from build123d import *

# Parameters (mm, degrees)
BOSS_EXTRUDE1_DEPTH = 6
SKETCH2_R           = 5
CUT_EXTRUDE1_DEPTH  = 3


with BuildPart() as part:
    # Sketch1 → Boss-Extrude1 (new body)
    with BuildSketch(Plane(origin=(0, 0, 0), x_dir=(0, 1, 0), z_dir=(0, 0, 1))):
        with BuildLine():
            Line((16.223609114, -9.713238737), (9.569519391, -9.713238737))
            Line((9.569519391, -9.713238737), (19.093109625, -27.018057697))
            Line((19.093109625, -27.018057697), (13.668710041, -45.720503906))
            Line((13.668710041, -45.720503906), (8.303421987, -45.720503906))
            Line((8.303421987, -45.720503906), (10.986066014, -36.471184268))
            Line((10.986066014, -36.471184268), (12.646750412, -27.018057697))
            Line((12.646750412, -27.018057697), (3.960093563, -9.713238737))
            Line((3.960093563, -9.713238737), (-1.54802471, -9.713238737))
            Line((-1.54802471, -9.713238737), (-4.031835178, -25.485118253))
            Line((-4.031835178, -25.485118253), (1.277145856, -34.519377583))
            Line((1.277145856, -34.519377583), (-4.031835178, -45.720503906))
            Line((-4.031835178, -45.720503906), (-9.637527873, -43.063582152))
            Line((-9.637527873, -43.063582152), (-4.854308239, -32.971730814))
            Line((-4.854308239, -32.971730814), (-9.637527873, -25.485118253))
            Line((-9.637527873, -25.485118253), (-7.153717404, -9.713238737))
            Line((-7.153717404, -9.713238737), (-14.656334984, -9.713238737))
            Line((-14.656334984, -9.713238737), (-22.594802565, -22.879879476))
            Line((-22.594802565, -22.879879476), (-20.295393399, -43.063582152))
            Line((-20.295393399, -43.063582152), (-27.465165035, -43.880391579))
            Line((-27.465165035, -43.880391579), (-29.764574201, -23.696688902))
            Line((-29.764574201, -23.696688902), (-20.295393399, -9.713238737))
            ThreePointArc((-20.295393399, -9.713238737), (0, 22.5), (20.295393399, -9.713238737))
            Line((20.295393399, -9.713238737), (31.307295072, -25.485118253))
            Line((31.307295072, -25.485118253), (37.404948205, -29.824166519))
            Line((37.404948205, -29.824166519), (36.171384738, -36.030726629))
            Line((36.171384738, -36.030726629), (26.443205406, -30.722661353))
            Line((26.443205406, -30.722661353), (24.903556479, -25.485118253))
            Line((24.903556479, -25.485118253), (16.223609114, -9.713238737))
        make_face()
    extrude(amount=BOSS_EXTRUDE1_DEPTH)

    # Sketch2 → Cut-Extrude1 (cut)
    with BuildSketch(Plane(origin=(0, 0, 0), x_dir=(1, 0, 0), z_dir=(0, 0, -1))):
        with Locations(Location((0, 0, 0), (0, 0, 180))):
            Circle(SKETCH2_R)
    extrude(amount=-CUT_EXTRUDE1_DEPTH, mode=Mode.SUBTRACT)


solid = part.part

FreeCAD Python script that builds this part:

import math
import FreeCAD as App
import Part
import Sketcher
Q = App.Units.Quantity

doc = App.newDocument("Part")
body = doc.addObject("PartDesign::Body", "Body")

# Sketch on XY plane
sketch1 = doc.addObject("Sketcher::SketchObject", "Sketch")
body.addObject(sketch1)
sketch1.AttachmentSupport = (doc.XY_Plane, [""])
sketch1.MapMode = "FlatFace"
sketch1.addGeometry([
    Part.LineSegment(App.Vector(10, 10, 0), App.Vector(10, 16, 0)),  # 0
    Part.LineSegment(App.Vector(10, 16, 0), App.Vector(25, 25, 0)),  # 1
    Part.LineSegment(App.Vector(25, 25, 0), App.Vector(31, 26, 0)),  # 2
    Part.LineSegment(App.Vector(31, 26, 0), App.Vector(36, 36, 0)),  # 3
    Part.LineSegment(App.Vector(36, 36, 0), App.Vector(30, 37, 0)),  # 4
    Part.LineSegment(App.Vector(30, 37, 0), App.Vector(25, 31, 0)),  # 5
    Part.LineSegment(App.Vector(25, 31, 0), App.Vector(10, 20, 0)),  # 6
    Part.ArcOfCircle(Part.Circle(App.Vector(0, 0, 0), App.Vector(0, 0, 1), 22), math.radians(64), math.radians(296)),  # 7
    Part.LineSegment(App.Vector(10, -20, 0), App.Vector(24, -30, 0)),  # 8
    Part.LineSegment(App.Vector(24, -30, 0), App.Vector(44, -27, 0)),  # 9
    Part.LineSegment(App.Vector(44, -27, 0), App.Vector(43, -20, 0)),  # 10
    Part.LineSegment(App.Vector(43, -20, 0), App.Vector(23, -23, 0)),  # 11
    Part.LineSegment(App.Vector(23, -23, 0), App.Vector(10, -15, 0)),  # 12
    Part.LineSegment(App.Vector(10, -15, 0), App.Vector(10, -7, 0)),  # 13
    Part.LineSegment(App.Vector(10, -7, 0), App.Vector(25, -10, 0)),  # 14
    Part.LineSegment(App.Vector(25, -10, 0), App.Vector(33, -5, 0)),  # 15
    Part.LineSegment(App.Vector(33, -5, 0), App.Vector(43, -10, 0)),  # 16
    Part.LineSegment(App.Vector(43, -10, 0), App.Vector(46, -4, 0)),  # 17
    Part.LineSegment(App.Vector(46, -4, 0), App.Vector(35, 1, 0)),  # 18
    Part.LineSegment(App.Vector(35, 1, 0), App.Vector(25, -4, 0)),  # 19
    Part.LineSegment(App.Vector(25, -4, 0), App.Vector(10, -2, 0)),  # 20
    Part.LineSegment(App.Vector(10, -2, 0), App.Vector(10, 4, 0)),  # 21
    Part.LineSegment(App.Vector(10, 4, 0), App.Vector(27, 13, 0)),  # 22
    Part.LineSegment(App.Vector(27, 13, 0), App.Vector(36, 11, 0)),  # 23
    Part.LineSegment(App.Vector(36, 11, 0), App.Vector(46, 8, 0)),  # 24
    Part.LineSegment(App.Vector(46, 8, 0), App.Vector(46, 14, 0)),  # 25
    Part.LineSegment(App.Vector(46, 14, 0), App.Vector(27, 19, 0)),  # 26
    Part.LineSegment(App.Vector(27, 19, 0), App.Vector(10, 10, 0)),  # 27
], False)
sketch1.addConstraint([
    Sketcher.Constraint("Coincident", 0, 2, 1, 1),
    Sketcher.Constraint("Coincident", 1, 2, 2, 1),
    Sketcher.Constraint("Coincident", 2, 2, 3, 1),
    Sketcher.Constraint("Coincident", 3, 2, 4, 1),
    Sketcher.Constraint("Coincident", 4, 2, 5, 1),
    Sketcher.Constraint("Coincident", 5, 2, 6, 1),
    Sketcher.Constraint("Coincident", 6, 2, 7, 1),
    Sketcher.Constraint("Coincident", 7, 2, 8, 1),
    Sketcher.Constraint("Coincident", 8, 2, 9, 1),
    Sketcher.Constraint("Coincident", 9, 2, 10, 1),
    Sketcher.Constraint("Coincident", 10, 2, 11, 1),
    Sketcher.Constraint("Coincident", 11, 2, 12, 1),
    Sketcher.Constraint("Coincident", 12, 2, 13, 1),
    Sketcher.Constraint("Coincident", 13, 2, 14, 1),
    Sketcher.Constraint("Coincident", 14, 2, 15, 1),
    Sketcher.Constraint("Coincident", 15, 2, 16, 1),
    Sketcher.Constraint("Coincident", 16, 2, 17, 1),
    Sketcher.Constraint("Coincident", 17, 2, 18, 1),
    Sketcher.Constraint("Coincident", 18, 2, 19, 1),
    Sketcher.Constraint("Coincident", 19, 2, 20, 1),
    Sketcher.Constraint("Coincident", 20, 2, 21, 1),
    Sketcher.Constraint("Coincident", 21, 2, 22, 1),
    Sketcher.Constraint("Coincident", 22, 2, 23, 1),
    Sketcher.Constraint("Coincident", 23, 2, 24, 1),
    Sketcher.Constraint("Coincident", 24, 2, 25, 1),
    Sketcher.Constraint("Coincident", 25, 2, 26, 1),
    Sketcher.Constraint("Coincident", 26, 2, 27, 1),
    Sketcher.Constraint("Coincident", 27, 2, 0, 1),
    Sketcher.Constraint("Vertical", 0),
    Sketcher.Constraint("Vertical", 13),
    Sketcher.Constraint("Vertical", 21),
    Sketcher.Constraint("Vertical", 25),
    Sketcher.Constraint("Coincident", 7, 3, -1, 1),
    Sketcher.Constraint("Perpendicular", 9, 10),
    Sketcher.Constraint("Perpendicular", 10, 11),
    Sketcher.Constraint("Perpendicular", 16, 17),
    Sketcher.Constraint("Perpendicular", 17, 18),
    Sketcher.Constraint("Parallel", 14, 20),
    Sketcher.Constraint("Parallel", 24, 26),
    Sketcher.Constraint("Parallel", 1, 27),
    Sketcher.Constraint("Horizontal", 7, 2, 10, 2),
    Sketcher.Constraint("Horizontal", 14, 2, 16, 2),
    Sketcher.Constraint("Horizontal", 17, 2, 19, 2),
    Sketcher.Constraint("Vertical", 1, 2, 5, 2),
    Sketcher.Constraint("Vertical", 0, 2, 6, 2),
    Sketcher.Constraint("Vertical", 6, 2, 7, 2),
    Sketcher.Constraint("Vertical", 7, 2, 12, 2),
    Sketcher.Constraint("Vertical", 5, 2, 14, 2),
    Sketcher.Constraint("Vertical", 10, 2, 16, 2),
    Sketcher.Constraint("Vertical", 14, 2, 19, 2),
    Sketcher.Constraint("Vertical", 13, 2, 20, 2),
    Sketcher.Constraint("Vertical", 17, 2, 24, 2),
    Sketcher.Constraint("Vertical", 22, 2, 26, 2),
    Sketcher.Constraint("Equal", 9, 11),
    Sketcher.Constraint("Radius", 7, Q("22.5 mm")),
    Sketcher.Constraint("Distance", 1, Q("18.002602 mm")),
    Sketcher.Constraint("Distance", 19, Q("10.478698 mm")),
    Sketcher.Constraint("Distance", 24, Q("9.630498 mm")),
    Sketcher.Constraint("DistanceY", 0, 1, 0, 2, Q("6.65409 mm")),
    Sketcher.Constraint("DistanceY", 21, 1, 21, 2, Q("5.508118 mm")),
    Sketcher.Constraint("DistanceY", 25, 1, 25, 2, Q("5.365288 mm")),
    Sketcher.Constraint("DistanceY", 6, 2, 5, 2, Q("11.011902 mm")),
    Sketcher.Constraint("DistanceY", 7, 2, 2, 2, Q("46.738599 mm")),
    Sketcher.Constraint("DistanceY", 21, 2, 6, 2, Q("16.3353 mm")),
    Sketcher.Constraint("DistanceY", 17, 2, 23, 2, Q("15.017901 mm")),
    Sketcher.Constraint("Distance", 4, Q("6.327959 mm")),
    Sketcher.Constraint("Distance", 9, Q("20.314259 mm")),
    Sketcher.Constraint("Distance", 10, Q("7.216149 mm")),
    Sketcher.Constraint("Distance", 14, Q("15.966261 mm")),
    Sketcher.Constraint("Distance", 16, Q("11.168019 mm")),
    Sketcher.Constraint("Distance", 17, Q("6.203469 mm")),
    Sketcher.Constraint("Distance", 23, Q("9.597889 mm")),
    Sketcher.Constraint("DistanceY", 13, 1, 13, 2, Q("7.502618 mm")),
    Sketcher.Constraint("DistanceX", -1, 1, 0, 2, Q("9.713239 mm")),
    Sketcher.Constraint("DistanceY", -1, 1, 0, 2, Q("16.223609 mm")),
    Sketcher.Constraint("DistanceX", -1, 1, 1, 2, Q("25.485118 mm")),
    Sketcher.Constraint("DistanceX", -1, 1, 2, 2, Q("30.722661 mm")),
    Sketcher.Constraint("DistanceY", -1, 1, 4, 2, Q("37.404948 mm")),
    Sketcher.Constraint("DistanceX", -1, 1, 8, 2, Q("23.696689 mm")),
    Sketcher.Constraint("DistanceX", -1, 1, 9, 2, Q("43.880392 mm")),
    Sketcher.Constraint("DistanceX", -1, 1, 15, 2, Q("32.971731 mm")),
    Sketcher.Constraint("DistanceY", -1, 1, 22, 2, Q("12.64675 mm")),
    Sketcher.Constraint("DistanceY", 2, 2, 3, 2, Q("9.728179 mm")),
    Sketcher.Constraint("DistanceX", 1, 2, 3, 2, Q("10.545608 mm")),
])
pad1 = doc.addObject("PartDesign::Pad", "Pad")
body.addObject(pad1)
pad1.Profile = sketch1
pad1.Length = 6

# Sketch on XY plane
sketch2 = doc.addObject("Sketcher::SketchObject", "Sketch001")
body.addObject(sketch2)
sketch2.AttachmentSupport = (doc.XY_Plane, [""])
sketch2.MapMode = "FlatFace"
sketch2.addGeometry(Part.Circle(App.Vector(0, 0, 0), App.Vector(0, 0, 1), 5), False)
sketch2.addConstraint([
    Sketcher.Constraint("Coincident", 0, 3, -1, 1),
    Sketcher.Constraint("Diameter", 0, Q("10 mm")),
])
pocket1 = doc.addObject("PartDesign::Pocket", "Pocket")
body.addObject(pocket1)
pocket1.Profile = sketch2
pocket1.Length = 3
pocket1.Reversed = True

doc.recompute()
